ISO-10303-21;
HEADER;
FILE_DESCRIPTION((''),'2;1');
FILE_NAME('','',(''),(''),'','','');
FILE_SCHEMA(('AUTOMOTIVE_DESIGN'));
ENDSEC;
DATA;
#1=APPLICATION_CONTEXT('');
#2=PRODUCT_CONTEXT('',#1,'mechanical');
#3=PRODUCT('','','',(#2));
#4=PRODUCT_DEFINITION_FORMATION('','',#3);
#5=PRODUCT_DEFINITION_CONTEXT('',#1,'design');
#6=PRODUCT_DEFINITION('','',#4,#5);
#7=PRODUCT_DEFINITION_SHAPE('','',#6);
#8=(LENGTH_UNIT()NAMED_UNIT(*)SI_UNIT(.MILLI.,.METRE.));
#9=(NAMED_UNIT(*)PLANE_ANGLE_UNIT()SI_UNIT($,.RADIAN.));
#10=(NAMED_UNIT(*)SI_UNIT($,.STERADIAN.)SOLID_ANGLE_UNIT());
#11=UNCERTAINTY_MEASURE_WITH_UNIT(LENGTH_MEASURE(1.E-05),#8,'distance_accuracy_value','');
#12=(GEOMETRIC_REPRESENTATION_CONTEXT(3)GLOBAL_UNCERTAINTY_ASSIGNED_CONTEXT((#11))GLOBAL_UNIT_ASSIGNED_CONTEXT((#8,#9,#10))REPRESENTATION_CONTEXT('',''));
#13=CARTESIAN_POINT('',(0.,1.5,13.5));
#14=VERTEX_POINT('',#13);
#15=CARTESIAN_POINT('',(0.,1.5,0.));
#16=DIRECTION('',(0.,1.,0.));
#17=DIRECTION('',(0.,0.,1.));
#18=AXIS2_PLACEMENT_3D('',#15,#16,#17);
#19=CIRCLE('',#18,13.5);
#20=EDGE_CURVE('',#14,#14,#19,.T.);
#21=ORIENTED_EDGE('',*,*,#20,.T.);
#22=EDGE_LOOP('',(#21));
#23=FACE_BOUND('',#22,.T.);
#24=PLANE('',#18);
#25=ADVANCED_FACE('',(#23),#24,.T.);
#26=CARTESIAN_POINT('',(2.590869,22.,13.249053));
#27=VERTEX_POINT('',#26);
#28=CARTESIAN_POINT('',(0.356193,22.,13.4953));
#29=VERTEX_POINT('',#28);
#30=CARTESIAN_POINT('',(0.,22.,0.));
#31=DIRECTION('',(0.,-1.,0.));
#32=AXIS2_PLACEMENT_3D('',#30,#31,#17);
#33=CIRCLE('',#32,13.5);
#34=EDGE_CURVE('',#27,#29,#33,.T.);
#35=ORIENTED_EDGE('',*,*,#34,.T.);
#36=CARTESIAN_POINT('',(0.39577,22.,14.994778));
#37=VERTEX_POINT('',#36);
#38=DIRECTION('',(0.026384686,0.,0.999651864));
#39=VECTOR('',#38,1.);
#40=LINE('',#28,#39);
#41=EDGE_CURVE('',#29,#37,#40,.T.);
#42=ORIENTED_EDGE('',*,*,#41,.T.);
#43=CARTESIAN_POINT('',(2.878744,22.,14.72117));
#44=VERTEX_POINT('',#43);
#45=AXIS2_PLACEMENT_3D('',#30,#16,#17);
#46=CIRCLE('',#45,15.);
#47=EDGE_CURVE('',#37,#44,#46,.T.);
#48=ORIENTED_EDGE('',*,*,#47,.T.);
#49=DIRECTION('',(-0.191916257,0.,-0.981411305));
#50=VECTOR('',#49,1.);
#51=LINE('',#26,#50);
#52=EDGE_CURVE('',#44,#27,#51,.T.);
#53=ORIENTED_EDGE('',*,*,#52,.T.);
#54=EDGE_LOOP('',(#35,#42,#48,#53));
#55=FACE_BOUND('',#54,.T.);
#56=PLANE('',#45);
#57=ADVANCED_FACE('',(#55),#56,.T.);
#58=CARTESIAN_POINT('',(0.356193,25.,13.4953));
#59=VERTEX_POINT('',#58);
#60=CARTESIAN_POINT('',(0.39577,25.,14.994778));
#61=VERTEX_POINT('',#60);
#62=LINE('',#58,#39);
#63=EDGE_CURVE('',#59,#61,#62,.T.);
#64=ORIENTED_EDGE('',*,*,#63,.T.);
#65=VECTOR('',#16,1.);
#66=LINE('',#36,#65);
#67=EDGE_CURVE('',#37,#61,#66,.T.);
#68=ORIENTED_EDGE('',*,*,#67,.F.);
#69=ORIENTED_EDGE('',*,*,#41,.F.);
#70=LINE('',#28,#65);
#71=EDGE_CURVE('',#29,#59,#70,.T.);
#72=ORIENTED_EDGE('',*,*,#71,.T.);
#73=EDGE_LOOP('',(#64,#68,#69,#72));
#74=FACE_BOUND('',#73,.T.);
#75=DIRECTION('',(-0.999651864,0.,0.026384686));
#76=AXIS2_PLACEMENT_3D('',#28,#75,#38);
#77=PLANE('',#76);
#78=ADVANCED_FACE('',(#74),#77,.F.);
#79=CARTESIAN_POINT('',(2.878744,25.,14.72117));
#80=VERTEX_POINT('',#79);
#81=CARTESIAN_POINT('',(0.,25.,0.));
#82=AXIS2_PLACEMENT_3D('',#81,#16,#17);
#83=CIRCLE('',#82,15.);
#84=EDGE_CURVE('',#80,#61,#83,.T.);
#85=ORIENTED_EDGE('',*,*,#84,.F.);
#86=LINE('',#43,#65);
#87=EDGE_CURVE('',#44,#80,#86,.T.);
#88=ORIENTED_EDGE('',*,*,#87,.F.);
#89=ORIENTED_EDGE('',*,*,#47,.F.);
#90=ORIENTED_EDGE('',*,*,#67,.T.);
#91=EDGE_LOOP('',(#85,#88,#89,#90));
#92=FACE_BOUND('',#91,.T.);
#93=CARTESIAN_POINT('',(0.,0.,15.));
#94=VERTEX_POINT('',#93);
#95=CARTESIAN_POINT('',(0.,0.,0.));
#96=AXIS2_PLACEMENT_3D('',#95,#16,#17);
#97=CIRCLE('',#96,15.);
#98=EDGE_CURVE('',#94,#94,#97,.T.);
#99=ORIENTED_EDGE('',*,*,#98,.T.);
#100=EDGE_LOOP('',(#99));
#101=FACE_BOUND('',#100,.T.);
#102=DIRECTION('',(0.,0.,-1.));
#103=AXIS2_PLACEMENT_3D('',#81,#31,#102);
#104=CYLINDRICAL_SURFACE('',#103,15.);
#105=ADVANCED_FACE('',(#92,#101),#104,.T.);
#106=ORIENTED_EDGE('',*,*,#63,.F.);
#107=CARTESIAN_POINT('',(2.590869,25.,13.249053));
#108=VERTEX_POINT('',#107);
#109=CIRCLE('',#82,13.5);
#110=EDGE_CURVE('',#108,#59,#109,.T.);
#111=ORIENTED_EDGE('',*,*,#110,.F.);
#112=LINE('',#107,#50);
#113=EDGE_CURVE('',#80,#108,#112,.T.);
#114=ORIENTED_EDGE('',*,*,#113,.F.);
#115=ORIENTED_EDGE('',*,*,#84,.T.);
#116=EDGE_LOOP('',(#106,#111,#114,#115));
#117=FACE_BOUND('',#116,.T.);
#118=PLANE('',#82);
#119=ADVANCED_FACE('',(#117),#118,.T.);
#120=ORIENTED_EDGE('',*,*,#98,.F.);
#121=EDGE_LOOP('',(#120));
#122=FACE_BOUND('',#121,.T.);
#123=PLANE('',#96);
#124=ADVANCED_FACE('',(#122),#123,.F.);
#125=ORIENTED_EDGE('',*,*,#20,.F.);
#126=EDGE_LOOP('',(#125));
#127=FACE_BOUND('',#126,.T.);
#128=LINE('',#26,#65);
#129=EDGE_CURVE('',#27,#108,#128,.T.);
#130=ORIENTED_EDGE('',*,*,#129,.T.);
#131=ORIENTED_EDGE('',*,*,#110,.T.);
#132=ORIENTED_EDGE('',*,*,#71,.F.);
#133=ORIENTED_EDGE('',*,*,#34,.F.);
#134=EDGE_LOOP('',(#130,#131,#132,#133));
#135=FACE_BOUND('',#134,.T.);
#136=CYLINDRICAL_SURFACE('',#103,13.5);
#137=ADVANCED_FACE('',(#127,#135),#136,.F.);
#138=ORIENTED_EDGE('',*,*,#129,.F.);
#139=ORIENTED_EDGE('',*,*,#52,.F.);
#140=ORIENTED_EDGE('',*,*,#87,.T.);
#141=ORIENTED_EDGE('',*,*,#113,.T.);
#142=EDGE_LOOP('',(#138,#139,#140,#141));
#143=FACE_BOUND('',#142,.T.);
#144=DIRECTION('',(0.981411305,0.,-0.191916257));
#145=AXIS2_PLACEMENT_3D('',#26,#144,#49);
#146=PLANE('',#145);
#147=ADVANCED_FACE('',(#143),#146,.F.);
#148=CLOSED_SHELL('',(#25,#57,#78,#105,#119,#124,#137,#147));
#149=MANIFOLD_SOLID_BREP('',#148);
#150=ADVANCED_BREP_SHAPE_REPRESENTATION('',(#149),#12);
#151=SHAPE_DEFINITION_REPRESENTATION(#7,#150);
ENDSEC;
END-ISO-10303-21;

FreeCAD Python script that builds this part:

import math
import FreeCAD as App
import Part
import Sketcher


def faces_at(feature, points):
    """Names of the faces that lie closest to the given points."""
    faces = feature.Shape.Faces
    near = lambda p: min(range(len(faces)), key=lambda i: faces[i].distToShape(Part.Vertex(*p))[0])
    return sorted({f"Face{near(p) + 1}" for p in points})

doc = App.newDocument("Part")
body = doc.addObject("PartDesign::Body", "Body")

sketch1 = body.newObject("Sketcher::SketchObject", "Sketch")
sketch1.AttachmentSupport = (doc.getObject("XZ_Plane"), [""])
sketch1.MapMode = "FlatFace"
sketch1.addGeometry(Part.Circle(App.Vector(0, 0, 0), App.Vector(0, 0, 1), 15), False)
sketch1.addConstraint([
    Sketcher.Constraint("Coincident", 0, 3, -1, 1),
    Sketcher.Constraint("Diameter", 0, 30.0),
])
pad1 = body.newObject("PartDesign::Pad", "Pad")
pad1.Profile = sketch1
pad1.Length = 25
pad1.Reversed = True
doc.recompute()

thickness = body.newObject("PartDesign::Thickness", "Thickness")
thickness.Base = (pad1, faces_at(pad1, [(0, 25, 0)]))
thickness.Value = 1.5
thickness.Reversed = True
thickness.Join = "Intersection"

sketch2 = body.newObject("Sketcher::SketchObject", "Sketch001")
sketch2.AttachmentSupport = (doc.getObject("XZ_Plane"), [""])
sketch2.MapMode = "FlatFace"
sketch2.AttachmentOffset = App.Placement(App.Vector(0, 0, -22), App.Rotation())
sketch2.addGeometry([
    Part.LineSegment(App.Vector(0.356193, 13.4953, 0), App.Vector(0.39577, 14.994778, 0)),
    Part.ArcOfCircle(Part.Circle(App.Vector(0, 0, 0), App.Vector(0, 0, 1), 15), math.radians(78.935364), math.radians(88.488093)),
    Part.LineSegment(App.Vector(2.878744, 14.72117, 0), App.Vector(2.590869, 13.249053, 0)),
    Part.ArcOfCircle(Part.Circle(App.Vector(0, 0, 0), App.Vector(0, 0, 1), 13.5), math.radians(78.935364), math.radians(88.488093)),
], False)
sketch2.addConstraint([
    Sketcher.Constraint("Coincident", 0, 2, 1, 2),
    Sketcher.Constraint("Coincident", 1, 1, 2, 1),
    Sketcher.Constraint("Coincident", 2, 2, 3, 1),
    Sketcher.Constraint("Coincident", 3, 2, 0, 1),
    Sketcher.Constraint("Coincident", 1, 3, -1, 1),
    Sketcher.Constraint("Coincident", 3, 3, -1, 1),
    Sketcher.Constraint("Radius", 1, 15.0),
    Sketcher.Constraint("Radius", 3, 13.5),
    Sketcher.Constraint("DistanceY", -1, 1, 3, 2, 13.4953),
    Sketcher.Constraint("DistanceX", 0, 2, 2, 2, 2.195099),
    Sketcher.Constraint("DistanceX", -1, 1, 0, 2, 0.39577),
    Sketcher.Constraint("DistanceY", -1, 1, 1, 1, 14.72117),
])
pocket1 = body.newObject("PartDesign::Pocket", "Pocket")
pocket1.Profile = sketch2
pocket1.Length = 3

doc.recompute()
